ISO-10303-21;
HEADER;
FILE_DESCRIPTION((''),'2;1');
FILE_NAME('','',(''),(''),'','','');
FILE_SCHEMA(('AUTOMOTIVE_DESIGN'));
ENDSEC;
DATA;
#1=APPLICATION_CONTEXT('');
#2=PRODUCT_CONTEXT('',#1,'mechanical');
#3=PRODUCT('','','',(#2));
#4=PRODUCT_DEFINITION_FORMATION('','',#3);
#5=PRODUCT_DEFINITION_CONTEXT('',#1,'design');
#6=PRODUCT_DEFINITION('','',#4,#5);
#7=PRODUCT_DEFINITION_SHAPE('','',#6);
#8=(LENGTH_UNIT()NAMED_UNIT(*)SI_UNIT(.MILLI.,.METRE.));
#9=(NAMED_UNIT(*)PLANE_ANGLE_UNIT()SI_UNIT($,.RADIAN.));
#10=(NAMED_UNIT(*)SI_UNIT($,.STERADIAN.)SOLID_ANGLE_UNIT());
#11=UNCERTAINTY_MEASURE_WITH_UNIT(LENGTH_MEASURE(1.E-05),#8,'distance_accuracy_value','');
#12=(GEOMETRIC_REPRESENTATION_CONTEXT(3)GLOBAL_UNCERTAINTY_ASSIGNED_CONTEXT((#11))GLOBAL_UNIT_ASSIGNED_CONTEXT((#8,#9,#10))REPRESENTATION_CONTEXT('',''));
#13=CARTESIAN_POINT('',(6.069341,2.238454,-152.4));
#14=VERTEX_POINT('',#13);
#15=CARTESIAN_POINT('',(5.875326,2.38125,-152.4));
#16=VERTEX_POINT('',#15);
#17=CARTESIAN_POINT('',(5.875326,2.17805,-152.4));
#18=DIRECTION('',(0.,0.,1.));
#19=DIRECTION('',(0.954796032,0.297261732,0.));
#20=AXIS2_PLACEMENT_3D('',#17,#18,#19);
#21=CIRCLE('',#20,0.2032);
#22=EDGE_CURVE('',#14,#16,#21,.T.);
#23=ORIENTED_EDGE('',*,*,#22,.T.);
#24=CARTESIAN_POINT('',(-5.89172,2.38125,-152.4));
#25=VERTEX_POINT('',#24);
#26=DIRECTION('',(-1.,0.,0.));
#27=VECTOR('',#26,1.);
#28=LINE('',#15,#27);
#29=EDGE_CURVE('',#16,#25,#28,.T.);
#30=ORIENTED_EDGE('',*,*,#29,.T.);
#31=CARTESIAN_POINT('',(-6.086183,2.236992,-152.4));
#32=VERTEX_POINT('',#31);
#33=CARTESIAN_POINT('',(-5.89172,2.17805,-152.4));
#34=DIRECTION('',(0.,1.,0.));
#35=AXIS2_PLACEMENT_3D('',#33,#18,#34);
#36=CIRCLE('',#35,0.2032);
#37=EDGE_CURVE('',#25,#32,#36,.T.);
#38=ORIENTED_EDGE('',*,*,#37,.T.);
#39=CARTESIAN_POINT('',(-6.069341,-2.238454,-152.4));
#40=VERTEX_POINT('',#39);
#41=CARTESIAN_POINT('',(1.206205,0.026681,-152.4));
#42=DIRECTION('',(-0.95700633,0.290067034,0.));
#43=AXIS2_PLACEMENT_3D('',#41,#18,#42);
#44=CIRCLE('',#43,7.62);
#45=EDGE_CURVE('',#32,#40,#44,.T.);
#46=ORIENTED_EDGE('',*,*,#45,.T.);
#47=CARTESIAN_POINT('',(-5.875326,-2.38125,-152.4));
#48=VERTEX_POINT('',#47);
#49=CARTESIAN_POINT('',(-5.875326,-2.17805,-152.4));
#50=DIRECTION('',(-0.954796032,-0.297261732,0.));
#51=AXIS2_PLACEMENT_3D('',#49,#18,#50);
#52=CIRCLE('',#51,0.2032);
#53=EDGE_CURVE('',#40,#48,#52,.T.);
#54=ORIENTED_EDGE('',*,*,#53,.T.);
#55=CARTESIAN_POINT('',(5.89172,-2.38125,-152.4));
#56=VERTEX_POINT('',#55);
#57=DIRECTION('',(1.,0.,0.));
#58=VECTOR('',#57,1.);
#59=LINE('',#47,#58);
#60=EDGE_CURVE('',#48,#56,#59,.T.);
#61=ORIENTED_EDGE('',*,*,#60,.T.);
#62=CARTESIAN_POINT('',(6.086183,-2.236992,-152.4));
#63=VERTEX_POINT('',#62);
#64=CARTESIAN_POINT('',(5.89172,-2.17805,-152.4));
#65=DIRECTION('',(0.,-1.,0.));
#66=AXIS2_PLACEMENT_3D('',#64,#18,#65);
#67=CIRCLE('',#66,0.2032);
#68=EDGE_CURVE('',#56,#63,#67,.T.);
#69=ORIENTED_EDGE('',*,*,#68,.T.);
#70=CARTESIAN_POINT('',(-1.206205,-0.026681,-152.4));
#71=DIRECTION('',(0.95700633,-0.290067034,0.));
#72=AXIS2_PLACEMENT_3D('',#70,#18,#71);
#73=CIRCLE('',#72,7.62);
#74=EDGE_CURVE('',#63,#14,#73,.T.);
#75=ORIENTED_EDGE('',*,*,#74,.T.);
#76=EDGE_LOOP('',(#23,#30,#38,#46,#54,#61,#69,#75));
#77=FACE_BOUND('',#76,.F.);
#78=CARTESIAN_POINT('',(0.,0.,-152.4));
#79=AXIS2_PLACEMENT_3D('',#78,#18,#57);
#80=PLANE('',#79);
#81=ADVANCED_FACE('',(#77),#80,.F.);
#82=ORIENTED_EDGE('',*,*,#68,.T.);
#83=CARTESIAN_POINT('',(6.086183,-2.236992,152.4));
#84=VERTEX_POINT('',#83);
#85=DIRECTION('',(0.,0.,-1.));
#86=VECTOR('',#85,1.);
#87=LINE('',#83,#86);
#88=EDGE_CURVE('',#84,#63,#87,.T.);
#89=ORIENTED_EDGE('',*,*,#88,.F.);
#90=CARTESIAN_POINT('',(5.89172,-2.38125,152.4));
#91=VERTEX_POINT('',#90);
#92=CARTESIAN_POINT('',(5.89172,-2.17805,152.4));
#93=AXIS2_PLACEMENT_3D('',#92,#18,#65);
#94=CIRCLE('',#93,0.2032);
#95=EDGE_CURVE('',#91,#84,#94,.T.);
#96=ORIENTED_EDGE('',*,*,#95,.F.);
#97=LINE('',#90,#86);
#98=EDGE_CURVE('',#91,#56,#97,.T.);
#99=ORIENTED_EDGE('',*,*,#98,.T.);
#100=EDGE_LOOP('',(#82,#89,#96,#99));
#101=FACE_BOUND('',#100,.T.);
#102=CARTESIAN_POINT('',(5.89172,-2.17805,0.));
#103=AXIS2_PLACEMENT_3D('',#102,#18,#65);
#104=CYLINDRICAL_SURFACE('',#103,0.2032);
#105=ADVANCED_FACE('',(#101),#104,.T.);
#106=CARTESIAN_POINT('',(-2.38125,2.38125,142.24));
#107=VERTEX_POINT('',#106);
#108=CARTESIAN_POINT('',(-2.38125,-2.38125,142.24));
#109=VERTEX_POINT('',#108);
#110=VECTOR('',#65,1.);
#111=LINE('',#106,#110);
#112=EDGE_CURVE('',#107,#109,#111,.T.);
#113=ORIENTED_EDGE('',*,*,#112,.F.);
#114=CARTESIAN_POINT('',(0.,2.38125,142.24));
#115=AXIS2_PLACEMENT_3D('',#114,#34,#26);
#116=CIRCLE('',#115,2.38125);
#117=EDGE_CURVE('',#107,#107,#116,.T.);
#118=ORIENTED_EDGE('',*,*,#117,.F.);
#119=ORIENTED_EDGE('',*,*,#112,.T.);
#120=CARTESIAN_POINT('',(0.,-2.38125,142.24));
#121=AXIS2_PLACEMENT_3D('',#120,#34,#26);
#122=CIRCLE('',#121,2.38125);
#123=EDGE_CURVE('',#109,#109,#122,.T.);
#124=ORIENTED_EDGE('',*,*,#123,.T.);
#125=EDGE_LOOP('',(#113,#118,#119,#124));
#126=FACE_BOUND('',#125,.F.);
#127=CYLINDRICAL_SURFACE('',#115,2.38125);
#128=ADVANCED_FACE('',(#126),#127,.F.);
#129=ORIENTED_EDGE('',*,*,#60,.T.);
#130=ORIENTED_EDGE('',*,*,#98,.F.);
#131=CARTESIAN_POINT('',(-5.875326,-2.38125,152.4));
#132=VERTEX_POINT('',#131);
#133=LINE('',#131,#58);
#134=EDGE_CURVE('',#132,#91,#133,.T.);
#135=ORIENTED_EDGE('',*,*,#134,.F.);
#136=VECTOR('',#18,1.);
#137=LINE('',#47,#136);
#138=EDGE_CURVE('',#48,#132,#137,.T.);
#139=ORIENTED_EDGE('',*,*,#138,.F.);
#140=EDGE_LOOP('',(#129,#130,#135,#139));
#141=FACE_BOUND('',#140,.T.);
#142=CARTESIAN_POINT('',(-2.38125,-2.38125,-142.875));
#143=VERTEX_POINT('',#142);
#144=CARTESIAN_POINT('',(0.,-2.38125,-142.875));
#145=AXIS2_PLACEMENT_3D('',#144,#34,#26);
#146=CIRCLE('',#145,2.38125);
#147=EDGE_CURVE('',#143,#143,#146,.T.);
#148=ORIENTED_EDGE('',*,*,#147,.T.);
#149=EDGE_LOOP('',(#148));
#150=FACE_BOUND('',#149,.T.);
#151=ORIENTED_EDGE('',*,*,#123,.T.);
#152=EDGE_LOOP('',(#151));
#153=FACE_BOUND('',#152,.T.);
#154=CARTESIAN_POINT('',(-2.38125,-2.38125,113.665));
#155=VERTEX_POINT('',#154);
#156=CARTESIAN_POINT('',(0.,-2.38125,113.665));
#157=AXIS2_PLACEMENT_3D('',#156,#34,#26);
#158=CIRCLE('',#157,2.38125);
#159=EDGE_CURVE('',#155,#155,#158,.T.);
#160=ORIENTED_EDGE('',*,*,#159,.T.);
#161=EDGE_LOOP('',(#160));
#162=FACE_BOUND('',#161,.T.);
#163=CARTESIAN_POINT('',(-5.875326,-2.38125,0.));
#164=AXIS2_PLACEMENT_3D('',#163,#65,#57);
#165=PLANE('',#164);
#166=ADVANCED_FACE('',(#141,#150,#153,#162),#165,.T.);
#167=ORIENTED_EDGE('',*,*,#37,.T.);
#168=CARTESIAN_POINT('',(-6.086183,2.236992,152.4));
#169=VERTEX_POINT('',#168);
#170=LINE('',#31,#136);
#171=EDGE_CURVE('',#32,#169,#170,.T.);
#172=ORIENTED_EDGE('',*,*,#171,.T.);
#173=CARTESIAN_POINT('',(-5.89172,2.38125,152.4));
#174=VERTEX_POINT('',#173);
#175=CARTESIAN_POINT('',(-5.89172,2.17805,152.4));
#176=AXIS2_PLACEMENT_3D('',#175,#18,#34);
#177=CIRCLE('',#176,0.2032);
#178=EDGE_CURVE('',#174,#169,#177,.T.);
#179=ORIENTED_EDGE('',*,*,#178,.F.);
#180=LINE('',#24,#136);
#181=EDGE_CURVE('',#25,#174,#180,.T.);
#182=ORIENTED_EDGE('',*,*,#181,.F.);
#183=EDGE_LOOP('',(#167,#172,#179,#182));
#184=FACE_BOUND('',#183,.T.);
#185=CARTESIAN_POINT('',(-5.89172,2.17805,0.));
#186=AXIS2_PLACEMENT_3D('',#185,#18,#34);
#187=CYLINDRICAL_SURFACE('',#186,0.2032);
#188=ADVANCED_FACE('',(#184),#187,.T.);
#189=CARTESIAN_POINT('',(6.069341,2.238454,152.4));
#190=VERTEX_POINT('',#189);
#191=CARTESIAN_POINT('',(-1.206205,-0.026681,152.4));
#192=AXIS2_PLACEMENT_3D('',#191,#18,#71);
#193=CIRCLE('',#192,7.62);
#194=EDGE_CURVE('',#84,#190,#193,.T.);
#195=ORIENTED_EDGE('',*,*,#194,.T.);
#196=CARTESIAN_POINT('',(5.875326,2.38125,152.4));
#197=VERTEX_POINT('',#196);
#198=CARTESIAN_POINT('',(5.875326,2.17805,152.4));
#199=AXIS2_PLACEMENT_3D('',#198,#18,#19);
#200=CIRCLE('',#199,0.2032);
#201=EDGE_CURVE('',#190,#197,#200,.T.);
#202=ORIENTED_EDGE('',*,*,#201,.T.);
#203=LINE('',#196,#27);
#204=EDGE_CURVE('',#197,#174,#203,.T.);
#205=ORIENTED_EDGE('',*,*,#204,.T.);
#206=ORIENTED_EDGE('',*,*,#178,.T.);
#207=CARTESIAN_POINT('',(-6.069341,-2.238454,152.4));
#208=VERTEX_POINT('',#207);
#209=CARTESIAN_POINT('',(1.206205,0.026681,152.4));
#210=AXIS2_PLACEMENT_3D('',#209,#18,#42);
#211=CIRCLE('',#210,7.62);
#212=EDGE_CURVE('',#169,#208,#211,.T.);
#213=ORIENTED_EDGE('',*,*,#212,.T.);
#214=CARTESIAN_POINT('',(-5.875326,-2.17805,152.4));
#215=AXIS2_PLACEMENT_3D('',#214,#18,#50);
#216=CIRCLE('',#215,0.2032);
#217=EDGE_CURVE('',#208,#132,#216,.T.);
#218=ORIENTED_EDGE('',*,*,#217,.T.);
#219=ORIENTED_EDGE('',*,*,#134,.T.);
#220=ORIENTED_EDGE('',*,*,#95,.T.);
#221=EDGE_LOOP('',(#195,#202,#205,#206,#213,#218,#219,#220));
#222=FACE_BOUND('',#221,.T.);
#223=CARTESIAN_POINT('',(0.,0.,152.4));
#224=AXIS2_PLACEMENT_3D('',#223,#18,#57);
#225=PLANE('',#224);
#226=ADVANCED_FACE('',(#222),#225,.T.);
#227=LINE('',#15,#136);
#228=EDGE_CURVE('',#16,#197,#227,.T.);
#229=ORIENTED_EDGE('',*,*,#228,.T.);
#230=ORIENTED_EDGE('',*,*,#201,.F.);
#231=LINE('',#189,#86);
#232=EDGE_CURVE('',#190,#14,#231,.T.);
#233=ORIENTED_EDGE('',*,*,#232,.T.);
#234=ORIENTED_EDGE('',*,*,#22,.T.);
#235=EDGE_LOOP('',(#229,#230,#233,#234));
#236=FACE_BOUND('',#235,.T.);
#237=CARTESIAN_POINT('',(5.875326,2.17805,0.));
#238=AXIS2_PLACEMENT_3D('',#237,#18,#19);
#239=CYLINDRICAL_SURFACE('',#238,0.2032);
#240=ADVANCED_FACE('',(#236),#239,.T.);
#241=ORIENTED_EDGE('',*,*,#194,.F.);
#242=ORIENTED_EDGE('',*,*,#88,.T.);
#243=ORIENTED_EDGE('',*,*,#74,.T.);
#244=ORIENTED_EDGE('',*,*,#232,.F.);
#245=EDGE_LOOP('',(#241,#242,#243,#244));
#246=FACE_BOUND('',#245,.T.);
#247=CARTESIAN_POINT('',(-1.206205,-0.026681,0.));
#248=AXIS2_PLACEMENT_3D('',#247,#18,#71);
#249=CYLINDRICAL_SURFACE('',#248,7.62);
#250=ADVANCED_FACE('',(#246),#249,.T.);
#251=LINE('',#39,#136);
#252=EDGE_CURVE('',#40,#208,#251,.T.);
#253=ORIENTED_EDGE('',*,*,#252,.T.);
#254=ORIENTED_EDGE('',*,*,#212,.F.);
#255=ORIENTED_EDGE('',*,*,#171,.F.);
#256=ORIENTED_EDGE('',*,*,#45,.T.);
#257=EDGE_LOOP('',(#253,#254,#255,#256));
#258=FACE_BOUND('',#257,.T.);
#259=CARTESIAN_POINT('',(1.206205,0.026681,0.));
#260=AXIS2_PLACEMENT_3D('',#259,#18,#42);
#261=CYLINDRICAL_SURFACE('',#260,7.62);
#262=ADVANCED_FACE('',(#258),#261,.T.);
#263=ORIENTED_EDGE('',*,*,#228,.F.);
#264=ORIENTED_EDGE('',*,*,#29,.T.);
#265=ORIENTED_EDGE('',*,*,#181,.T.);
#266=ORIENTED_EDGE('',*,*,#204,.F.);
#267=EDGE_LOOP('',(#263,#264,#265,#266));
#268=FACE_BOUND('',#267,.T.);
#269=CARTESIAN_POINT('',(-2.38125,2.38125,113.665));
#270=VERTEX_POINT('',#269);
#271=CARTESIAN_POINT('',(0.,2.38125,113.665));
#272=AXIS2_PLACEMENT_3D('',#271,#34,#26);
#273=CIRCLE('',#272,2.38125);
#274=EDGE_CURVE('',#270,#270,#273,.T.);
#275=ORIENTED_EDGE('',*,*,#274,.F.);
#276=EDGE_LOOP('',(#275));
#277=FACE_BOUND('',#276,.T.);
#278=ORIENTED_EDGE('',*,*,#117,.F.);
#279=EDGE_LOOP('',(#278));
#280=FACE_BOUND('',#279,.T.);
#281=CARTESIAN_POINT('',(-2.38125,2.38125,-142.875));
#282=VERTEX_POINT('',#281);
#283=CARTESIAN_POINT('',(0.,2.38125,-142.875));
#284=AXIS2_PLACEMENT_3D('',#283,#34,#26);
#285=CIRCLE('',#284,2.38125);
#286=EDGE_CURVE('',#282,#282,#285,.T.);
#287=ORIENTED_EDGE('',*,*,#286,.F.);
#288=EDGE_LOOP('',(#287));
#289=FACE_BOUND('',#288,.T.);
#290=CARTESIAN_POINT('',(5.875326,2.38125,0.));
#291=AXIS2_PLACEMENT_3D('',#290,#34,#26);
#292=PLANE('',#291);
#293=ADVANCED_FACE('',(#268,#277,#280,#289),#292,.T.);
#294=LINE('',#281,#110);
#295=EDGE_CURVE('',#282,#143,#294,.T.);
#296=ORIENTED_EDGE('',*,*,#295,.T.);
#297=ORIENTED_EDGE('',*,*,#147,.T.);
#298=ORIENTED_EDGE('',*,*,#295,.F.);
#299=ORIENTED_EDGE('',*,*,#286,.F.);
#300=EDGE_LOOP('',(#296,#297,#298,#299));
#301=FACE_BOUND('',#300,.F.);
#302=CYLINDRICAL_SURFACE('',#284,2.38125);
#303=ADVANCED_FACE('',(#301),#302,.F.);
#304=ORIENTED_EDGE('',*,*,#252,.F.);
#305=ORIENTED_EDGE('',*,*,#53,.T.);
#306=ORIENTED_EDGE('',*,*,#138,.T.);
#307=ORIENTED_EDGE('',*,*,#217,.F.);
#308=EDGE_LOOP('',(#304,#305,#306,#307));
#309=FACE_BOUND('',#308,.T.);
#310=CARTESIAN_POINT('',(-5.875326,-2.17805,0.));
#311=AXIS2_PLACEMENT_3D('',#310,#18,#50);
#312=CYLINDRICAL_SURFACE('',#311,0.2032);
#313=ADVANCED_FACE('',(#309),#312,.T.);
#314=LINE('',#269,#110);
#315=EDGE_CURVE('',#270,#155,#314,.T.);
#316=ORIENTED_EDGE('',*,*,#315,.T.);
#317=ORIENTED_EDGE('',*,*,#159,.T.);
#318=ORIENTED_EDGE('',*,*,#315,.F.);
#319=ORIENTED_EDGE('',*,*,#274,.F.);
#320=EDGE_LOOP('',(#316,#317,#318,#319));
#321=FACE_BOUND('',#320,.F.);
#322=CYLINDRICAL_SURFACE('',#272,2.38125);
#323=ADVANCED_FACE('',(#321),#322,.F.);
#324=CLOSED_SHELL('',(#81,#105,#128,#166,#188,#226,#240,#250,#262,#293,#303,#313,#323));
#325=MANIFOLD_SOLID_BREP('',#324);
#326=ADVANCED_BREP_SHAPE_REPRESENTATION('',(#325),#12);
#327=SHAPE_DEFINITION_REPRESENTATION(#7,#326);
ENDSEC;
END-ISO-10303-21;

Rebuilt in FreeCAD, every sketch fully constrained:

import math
import FreeCAD as App
import Part
import Sketcher

V = App.Vector
Q = App.Units.Quantity

doc = App.newDocument("Part")
body = doc.addObject("PartDesign::Body", "Body")

# Sketch on XY plane
sketch1 = body.newObject("Sketcher::SketchObject", "Sketch")
sketch1.AttachmentSupport = (doc.getObject("XY_Plane"), [""])
sketch1.MapMode = "FlatFace"
sketch1.addGeometry(Part.ArcOfCircle(Part.Circle(V(5.88, 2.18, 0), V(0, 0, 1), 0.2), math.radians(17), math.radians(90)), False)
sketch1.addGeometry(Part.LineSegment(V(5.88, 2.38, 0), V(-5.89, 2.38, 0)), False)
sketch1.addGeometry(Part.ArcOfCircle(Part.Circle(V(-5.89, 2.18, 0), V(0, 0, 1), 0.2), math.radians(90), math.radians(163)), False)
sketch1.addGeometry(Part.ArcOfCircle(Part.Circle(V(1.21, 0.03, 0), V(0, 0, 1), 7.62), math.radians(163), math.radians(197)), False)
sketch1.addGeometry(Part.ArcOfCircle(Part.Circle(V(-5.88, -2.18, 0), V(0, 0, 1), 0.2), math.radians(-163), math.radians(-90)), False)
sketch1.addGeometry(Part.LineSegment(V(-5.88, -2.38, 0), V(5.89, -2.38, 0)), False)
sketch1.addGeometry(Part.ArcOfCircle(Part.Circle(V(5.89, -2.18, 0), V(0, 0, 1), 0.2), math.radians(-90), math.radians(-17)), False)
sketch1.addGeometry(Part.ArcOfCircle(Part.Circle(V(-1.21, -0.03, 0), V(0, 0, 1), 7.62), math.radians(-17), math.radians(17)), False)
sketch1.addConstraint(Sketcher.Constraint("Tangent", 0, 2, 1, 1))
sketch1.addConstraint(Sketcher.Constraint("Tangent", 1, 2, 2, 1))
sketch1.addConstraint(Sketcher.Constraint("Tangent", 2, 2, 3, 1))
sketch1.addConstraint(Sketcher.Constraint("Tangent", 3, 2, 4, 1))
sketch1.addConstraint(Sketcher.Constraint("Tangent", 4, 2, 5, 1))
sketch1.addConstraint(Sketcher.Constraint("Tangent", 5, 2, 6, 1))
sketch1.addConstraint(Sketcher.Constraint("Tangent", 6, 2, 7, 1))
sketch1.addConstraint(Sketcher.Constraint("Tangent", 7, 2, 0, 1))
sketch1.addConstraint(Sketcher.Constraint("Horizontal", 1))
sketch1.addConstraint(Sketcher.Constraint("Horizontal", 5))
sketch1.addConstraint(Sketcher.Constraint("Equal", 0, 2))
sketch1.addConstraint(Sketcher.Constraint("Equal", 2, 4))
sketch1.addConstraint(Sketcher.Constraint("Equal", 4, 6))
sketch1.addConstraint(Sketcher.Constraint("Equal", 3, 7))
sketch1.addConstraint(Sketcher.Constraint("Symmetric", 0, 3, 4, 3, -1, 1))
sketch1.addConstraint(Sketcher.Constraint("Equal", 1, 5))
sketch1.addConstraint(Sketcher.Constraint("Radius", 3, Q("0.3 in")))
sketch1.addConstraint(Sketcher.Constraint("Radius", 0, Q("0.008 in")))
sketch1.addConstraint(Sketcher.Constraint("DistanceY", -1, 1, 0, 2, Q("0.09375 in")))
sketch1.addConstraint(Sketcher.Constraint("DistanceX", 1, 2, 1, 1, 11.767046))
sketch1.addConstraint(Sketcher.Constraint("DistanceX", 2, 3, -1, 1, 5.89172))
pad1 = body.newObject("PartDesign::Pad", "Pad")
pad1.Profile = sketch1
pad1.Length = Q("12 in")
pad1.Midplane = True

# Sketch on XZ plane
sketch2 = body.newObject("Sketcher::SketchObject", "Sketch001")
sketch2.AttachmentSupport = (doc.getObject("XZ_Plane"), [""])
sketch2.MapMode = "FlatFace"
sketch2.AttachmentOffset = App.Placement(V(0, 0, -0.09375 * 25.4), App.Rotation())
sketch2.addGeometry(Part.Circle(V(0, 142.2, 0), V(0, 0, 1), 2.4), False)
sketch2.addGeometry(Part.Circle(V(0, 113.7, 0), V(0, 0, 1), 2.4), False)
sketch2.addGeometry(Part.Circle(V(0, -142.9, 0), V(0, 0, 1), 2.4), False)
sketch2.addConstraint(Sketcher.Constraint("Equal", 0, 1))
sketch2.addConstraint(Sketcher.Constraint("Equal", 1, 2))
sketch2.addConstraint(Sketcher.Constraint("PointOnObject", 0, 3, -2))
sketch2.addConstraint(Sketcher.Constraint("PointOnObject", 1, 3, -2))
sketch2.addConstraint(Sketcher.Constraint("PointOnObject", 2, 3, -2))
sketch2.addConstraint(Sketcher.Constraint("Diameter", 0, Q("0.1875 in")))
sketch2.addConstraint(Sketcher.Constraint("DistanceY", -1, 1, 0, 3, Q("5.6 in")))
sketch2.addConstraint(Sketcher.Constraint("DistanceY", 2, 3, 1, 3, Q("10.1 in")))
sketch2.addConstraint(Sketcher.Constraint("DistanceY", -1, 1, 1, 3, Q("4.475 in")))
pocket1 = body.newObject("PartDesign::Pocket", "Pocket")
pocket1.Profile = sketch2
pocket1.Type = "ThroughAll"
pocket1.Reversed = True

doc.recompute()
